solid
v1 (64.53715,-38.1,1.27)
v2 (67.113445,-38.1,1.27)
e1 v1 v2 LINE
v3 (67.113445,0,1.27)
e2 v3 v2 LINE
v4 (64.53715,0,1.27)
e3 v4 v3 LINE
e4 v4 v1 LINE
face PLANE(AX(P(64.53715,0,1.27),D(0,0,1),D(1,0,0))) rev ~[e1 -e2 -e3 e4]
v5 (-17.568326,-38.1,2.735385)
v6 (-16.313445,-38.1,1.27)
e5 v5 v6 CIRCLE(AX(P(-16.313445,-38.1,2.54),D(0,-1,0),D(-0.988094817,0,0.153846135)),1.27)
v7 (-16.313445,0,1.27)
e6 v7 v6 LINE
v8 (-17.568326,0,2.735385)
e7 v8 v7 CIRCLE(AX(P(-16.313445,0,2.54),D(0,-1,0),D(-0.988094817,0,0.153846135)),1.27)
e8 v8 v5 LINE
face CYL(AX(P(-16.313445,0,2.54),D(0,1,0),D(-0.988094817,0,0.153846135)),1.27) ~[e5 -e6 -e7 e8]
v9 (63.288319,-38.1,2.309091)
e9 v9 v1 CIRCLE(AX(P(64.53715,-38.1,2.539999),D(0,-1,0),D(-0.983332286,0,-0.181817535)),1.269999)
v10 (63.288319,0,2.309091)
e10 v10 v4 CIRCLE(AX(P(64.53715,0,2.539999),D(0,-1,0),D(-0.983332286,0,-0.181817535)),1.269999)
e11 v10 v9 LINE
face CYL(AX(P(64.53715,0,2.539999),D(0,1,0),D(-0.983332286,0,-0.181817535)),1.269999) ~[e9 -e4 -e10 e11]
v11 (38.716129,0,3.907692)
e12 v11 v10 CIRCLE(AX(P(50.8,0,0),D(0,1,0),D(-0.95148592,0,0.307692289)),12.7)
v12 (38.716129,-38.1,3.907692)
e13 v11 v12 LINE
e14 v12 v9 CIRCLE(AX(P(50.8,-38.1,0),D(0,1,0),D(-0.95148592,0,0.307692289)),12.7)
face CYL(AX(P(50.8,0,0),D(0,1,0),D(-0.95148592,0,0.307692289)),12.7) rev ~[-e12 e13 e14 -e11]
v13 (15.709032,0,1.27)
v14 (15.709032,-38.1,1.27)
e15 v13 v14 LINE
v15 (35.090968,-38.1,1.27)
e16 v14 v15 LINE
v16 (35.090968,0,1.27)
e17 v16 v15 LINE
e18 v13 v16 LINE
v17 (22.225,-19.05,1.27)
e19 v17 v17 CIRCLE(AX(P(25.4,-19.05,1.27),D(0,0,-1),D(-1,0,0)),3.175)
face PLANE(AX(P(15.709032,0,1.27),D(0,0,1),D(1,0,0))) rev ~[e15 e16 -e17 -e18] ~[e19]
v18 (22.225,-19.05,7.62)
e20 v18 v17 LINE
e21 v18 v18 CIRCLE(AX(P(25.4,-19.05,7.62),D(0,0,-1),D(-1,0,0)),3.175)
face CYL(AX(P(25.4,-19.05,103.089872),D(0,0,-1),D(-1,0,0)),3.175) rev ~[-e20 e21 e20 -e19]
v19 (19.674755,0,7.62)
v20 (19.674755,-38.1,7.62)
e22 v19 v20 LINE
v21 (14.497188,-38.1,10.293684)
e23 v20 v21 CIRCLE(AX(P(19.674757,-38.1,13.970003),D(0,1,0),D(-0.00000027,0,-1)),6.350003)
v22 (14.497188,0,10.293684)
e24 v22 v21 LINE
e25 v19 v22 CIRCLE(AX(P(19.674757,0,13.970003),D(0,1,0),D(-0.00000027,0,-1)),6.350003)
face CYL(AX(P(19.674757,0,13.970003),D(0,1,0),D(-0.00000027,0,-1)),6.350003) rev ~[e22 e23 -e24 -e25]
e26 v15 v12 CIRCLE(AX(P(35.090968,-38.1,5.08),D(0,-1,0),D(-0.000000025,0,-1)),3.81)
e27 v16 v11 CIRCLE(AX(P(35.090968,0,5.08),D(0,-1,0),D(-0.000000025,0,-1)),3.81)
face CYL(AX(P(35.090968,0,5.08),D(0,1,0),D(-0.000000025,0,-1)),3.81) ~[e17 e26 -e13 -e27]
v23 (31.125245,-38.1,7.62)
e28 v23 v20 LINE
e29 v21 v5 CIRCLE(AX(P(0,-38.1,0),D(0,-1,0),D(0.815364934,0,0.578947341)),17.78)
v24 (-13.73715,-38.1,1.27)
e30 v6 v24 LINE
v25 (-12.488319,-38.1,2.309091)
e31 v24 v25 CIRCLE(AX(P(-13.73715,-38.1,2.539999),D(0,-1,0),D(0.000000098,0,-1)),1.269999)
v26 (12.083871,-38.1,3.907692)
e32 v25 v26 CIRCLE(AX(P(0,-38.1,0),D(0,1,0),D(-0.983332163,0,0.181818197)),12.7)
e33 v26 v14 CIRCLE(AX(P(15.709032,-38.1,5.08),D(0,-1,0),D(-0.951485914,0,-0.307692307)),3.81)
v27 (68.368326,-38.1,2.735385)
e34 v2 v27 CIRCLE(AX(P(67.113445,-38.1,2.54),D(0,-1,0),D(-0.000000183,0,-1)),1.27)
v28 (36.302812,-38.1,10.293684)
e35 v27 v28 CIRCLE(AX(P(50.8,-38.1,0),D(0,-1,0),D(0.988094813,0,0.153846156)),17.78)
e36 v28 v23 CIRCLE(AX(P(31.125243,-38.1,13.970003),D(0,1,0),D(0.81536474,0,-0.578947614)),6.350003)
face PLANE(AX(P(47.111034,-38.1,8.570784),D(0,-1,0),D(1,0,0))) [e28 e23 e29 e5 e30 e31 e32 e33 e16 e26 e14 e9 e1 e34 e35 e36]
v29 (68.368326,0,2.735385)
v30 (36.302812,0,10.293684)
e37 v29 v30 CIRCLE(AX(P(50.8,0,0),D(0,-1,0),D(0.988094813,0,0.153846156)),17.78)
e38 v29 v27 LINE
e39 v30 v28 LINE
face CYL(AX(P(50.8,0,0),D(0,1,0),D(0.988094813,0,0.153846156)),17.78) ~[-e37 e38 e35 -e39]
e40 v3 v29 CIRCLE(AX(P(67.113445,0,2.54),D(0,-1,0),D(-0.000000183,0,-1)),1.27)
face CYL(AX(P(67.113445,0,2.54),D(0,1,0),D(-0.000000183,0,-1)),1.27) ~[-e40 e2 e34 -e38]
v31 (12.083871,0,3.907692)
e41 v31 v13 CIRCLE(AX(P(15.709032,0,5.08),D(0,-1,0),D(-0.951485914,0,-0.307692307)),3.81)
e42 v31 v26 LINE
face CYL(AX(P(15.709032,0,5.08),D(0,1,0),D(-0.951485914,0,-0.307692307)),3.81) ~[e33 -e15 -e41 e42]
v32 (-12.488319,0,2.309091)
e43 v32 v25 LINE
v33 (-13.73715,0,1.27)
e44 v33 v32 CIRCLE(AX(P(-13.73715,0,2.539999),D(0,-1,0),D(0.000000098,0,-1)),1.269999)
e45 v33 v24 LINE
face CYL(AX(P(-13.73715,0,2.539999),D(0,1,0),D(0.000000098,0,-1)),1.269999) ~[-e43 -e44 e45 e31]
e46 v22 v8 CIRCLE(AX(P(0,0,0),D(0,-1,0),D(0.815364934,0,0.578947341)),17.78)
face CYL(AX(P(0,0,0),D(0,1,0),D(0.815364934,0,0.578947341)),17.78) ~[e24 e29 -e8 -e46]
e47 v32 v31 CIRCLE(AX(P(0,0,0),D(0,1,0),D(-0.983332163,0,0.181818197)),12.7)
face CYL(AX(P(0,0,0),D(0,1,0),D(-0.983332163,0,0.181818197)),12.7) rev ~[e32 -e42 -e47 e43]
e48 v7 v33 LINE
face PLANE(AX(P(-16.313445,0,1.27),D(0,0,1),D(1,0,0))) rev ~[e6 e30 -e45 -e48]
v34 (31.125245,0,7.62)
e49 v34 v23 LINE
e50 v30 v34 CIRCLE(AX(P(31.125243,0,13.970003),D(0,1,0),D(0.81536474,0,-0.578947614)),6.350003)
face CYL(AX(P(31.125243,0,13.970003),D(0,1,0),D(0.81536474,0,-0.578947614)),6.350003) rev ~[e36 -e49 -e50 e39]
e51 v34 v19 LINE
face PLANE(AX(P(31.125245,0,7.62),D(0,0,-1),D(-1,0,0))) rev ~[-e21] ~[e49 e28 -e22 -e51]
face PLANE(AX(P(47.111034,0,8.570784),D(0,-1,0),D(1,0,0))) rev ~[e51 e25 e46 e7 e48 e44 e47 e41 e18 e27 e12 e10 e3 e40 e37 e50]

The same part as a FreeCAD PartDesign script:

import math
import FreeCAD as App
import Part
import Sketcher

V = App.Vector
Q = App.Units.Quantity

doc = App.newDocument("Part")
body = doc.addObject("PartDesign::Body", "Body")

# Sketch on XZ plane
sketch1 = body.newObject("Sketcher::SketchObject", "Sketch")
sketch1.AttachmentSupport = (doc.getObject("XZ_Plane"), [""])
sketch1.MapMode = "FlatFace"
sketch1.addGeometry(Part.ArcOfCircle(Part.Circle(V(35.090968, 5.08, 0), V(0, 0, 1), 3.81), math.radians(-90.000001), math.radians(-17.920213)), False)
sketch1.addGeometry(Part.ArcOfCircle(Part.Circle(V(50.8, 0, 0), V(0, 0, 1), 12.7), math.radians(10.475683), math.radians(162.079788)), False)
sketch1.addGeometry(Part.ArcOfCircle(Part.Circle(V(64.53715, 2.539999, 0), V(0, 0, 1), 1.269999), math.radians(-169.524356), math.radians(-90.000006)), False)
sketch1.addGeometry(Part.LineSegment(V(64.53715, 1.27, 0), V(67.113445, 1.27, 0)), False)
sketch1.addGeometry(Part.ArcOfCircle(Part.Circle(V(67.113445, 2.54, 0), V(0, 0, 1), 1.27), math.radians(-90.00001), math.radians(8.849882)), False)
sketch1.addGeometry(Part.ArcOfCircle(Part.Circle(V(50.8, 0, 0), V(0, 0, 1), 17.78), math.radians(8.849883), math.radians(144.623462)), False)
sketch1.addGeometry(Part.ArcOfCircle(Part.Circle(V(31.125243, 13.970003, 0), V(0, 0, 1), 6.350003), math.radians(-89.999985), math.radians(-35.376557)), False)
sketch1.addGeometry(Part.LineSegment(V(31.125245, 7.62, 0), V(19.674755, 7.62, 0)), False)
sketch1.addGeometry(Part.ArcOfCircle(Part.Circle(V(19.674757, 13.970003, 0), V(0, 0, 1), 6.350003), math.radians(-144.623443), math.radians(-90.000015)), False)
sketch1.addGeometry(Part.ArcOfCircle(Part.Circle(V(0, 0, 0), V(0, 0, 1), 17.78), math.radians(35.376538), math.radians(171.150117)), False)
sketch1.addGeometry(Part.ArcOfCircle(Part.Circle(V(-16.313445, 2.54, 0), V(0, 0, 1), 1.27), math.radians(171.150118), math.radians(270.00001)), False)
sketch1.addGeometry(Part.LineSegment(V(-16.313445, 1.27, 0), V(-13.73715, 1.27, 0)), False)
sketch1.addGeometry(Part.ArcOfCircle(Part.Circle(V(-13.73715, 2.539999, 0), V(0, 0, 1), 1.269999), math.radians(-89.999994), math.radians(-10.475644)), False)
sketch1.addGeometry(Part.ArcOfCircle(Part.Circle(V(0, 0, 0), V(0, 0, 1), 12.7), math.radians(17.920212), math.radians(169.524317)), False)
sketch1.addGeometry(Part.ArcOfCircle(Part.Circle(V(15.709032, 5.08, 0), V(0, 0, 1), 3.81), math.radians(-162.079787), math.radians(-89.999999)), False)
sketch1.addGeometry(Part.LineSegment(V(15.709032, 1.27, 0), V(35.090968, 1.27, 0)), False)
sketch1.addConstraint(Sketcher.Constraint("Tangent", 0, 2, 1, 2))
sketch1.addConstraint(Sketcher.Constraint("Tangent", 1, 1, 2, 1))
sketch1.addConstraint(Sketcher.Constraint("Tangent", 2, 2, 3, 1))
sketch1.addConstraint(Sketcher.Constraint("Tangent", 3, 2, 4, 1))
sketch1.addConstraint(Sketcher.Constraint("Tangent", 4, 2, 5, 1))
sketch1.addConstraint(Sketcher.Constraint("Tangent", 5, 2, 6, 2))
sketch1.addConstraint(Sketcher.Constraint("Tangent", 6, 1, 7, 1))
sketch1.addConstraint(Sketcher.Constraint("Tangent", 7, 2, 8, 2))
sketch1.addConstraint(Sketcher.Constraint("Tangent", 8, 1, 9, 1))
sketch1.addConstraint(Sketcher.Constraint("Tangent", 9, 2, 10, 1))
sketch1.addConstraint(Sketcher.Constraint("Tangent", 10, 2, 11, 1))
sketch1.addConstraint(Sketcher.Constraint("Tangent", 11, 2, 12, 1))
sketch1.addConstraint(Sketcher.Constraint("Tangent", 12, 2, 13, 2))
sketch1.addConstraint(Sketcher.Constraint("Tangent", 13, 1, 14, 1))
sketch1.addConstraint(Sketcher.Constraint("Tangent", 14, 2, 15, 1))
sketch1.addConstraint(Sketcher.Constraint("Tangent", 15, 2, 0, 1))
sketch1.addConstraint(Sketcher.Constraint("Horizontal", 3))
sketch1.addConstraint(Sketcher.Constraint("Horizontal", 7))
sketch1.addConstraint(Sketcher.Constraint("Horizontal", 11))
sketch1.addConstraint(Sketcher.Constraint("Horizontal", 15))
sketch1.addConstraint(Sketcher.Constraint("Coincident", 9, 3, -1, 1))
sketch1.addConstraint(Sketcher.Constraint("Coincident", 13, 3, -1, 1))
sketch1.addConstraint(Sketcher.Constraint("Coincident", 5, 3, 1, 3))
sketch1.addConstraint(Sketcher.Constraint("Equal", 2, 4))
sketch1.addConstraint(Sketcher.Constraint("Equal", 6, 8))
sketch1.addConstraint(Sketcher.Constraint("Equal", 5, 9))
sketch1.addConstraint(Sketcher.Constraint("Equal", 4, 10))
sketch1.addConstraint(Sketcher.Constraint("Equal", 10, 12))
sketch1.addConstraint(Sketcher.Constraint("Equal", 1, 13))
sketch1.addConstraint(Sketcher.Constraint("Equal", 0, 14))
sketch1.addConstraint(Sketcher.Constraint("PointOnObject", 1, 3, -1))
sketch1.addConstraint(Sketcher.Constraint("Horizontal", 4, 3, 10, 3))
sketch1.addConstraint(Sketcher.Constraint("Horizontal", 11, 2, 14, 2))
sketch1.addConstraint(Sketcher.Constraint("Radius", 1, Q("0.5 in")))
sketch1.addConstraint(Sketcher.Constraint("Radius", 5, Q("0.7 in")))
sketch1.addConstraint(Sketcher.Constraint("Radius", 0, Q("0.15 in")))
sketch1.addConstraint(Sketcher.Constraint("Radius", 2, Q("0.05 in")))
sketch1.addConstraint(Sketcher.Constraint("Radius", 6, Q("0.2500001 in")))
sketch1.addConstraint(Sketcher.Constraint("DistanceX", -1, 1, 1, 3, Q("2 in")))
sketch1.addConstraint(Sketcher.Constraint("DistanceY", -1, 1, 0, 3, Q("0.2 in")))
sketch1.addConstraint(Sketcher.Constraint("DistanceY", -1, 1, 6, 1, Q("0.3 in")))
pad1 = body.newObject("PartDesign::Pad", "Pad")
pad1.Profile = sketch1
pad1.Length = Q("1.5 in")

# Sketch on XY plane
sketch2 = body.newObject("Sketcher::SketchObject", "Sketch001")
sketch2.AttachmentSupport = (doc.getObject("XY_Plane"), [""])
sketch2.MapMode = "FlatFace"
sketch2.AttachmentOffset = App.Placement(V(0, 0, 0.3 * 25.4), App.Rotation())
sketch2.addGeometry(Part.Circle(V(25.4, -19.05, 0), V(0, 0, 1), 3.175), False)
sketch2.addConstraint(Sketcher.Constraint("Diameter", 0, Q("0.25 in")))
sketch2.addConstraint(Sketcher.Constraint("DistanceX", -1, 1, 0, 3, Q("1 in")))
sketch2.addConstraint(Sketcher.Constraint("DistanceY", 0, 3, -1, 1, Q("0.75 in")))
doc.recompute()
hole = body.newObject("PartDesign::Hole", "Hole")
hole.Profile = sketch2
hole.ThreadType = "None"
hole.Diameter = Q("0.25 in")
hole.DepthType = "ThroughAll"

doc.recompute()
